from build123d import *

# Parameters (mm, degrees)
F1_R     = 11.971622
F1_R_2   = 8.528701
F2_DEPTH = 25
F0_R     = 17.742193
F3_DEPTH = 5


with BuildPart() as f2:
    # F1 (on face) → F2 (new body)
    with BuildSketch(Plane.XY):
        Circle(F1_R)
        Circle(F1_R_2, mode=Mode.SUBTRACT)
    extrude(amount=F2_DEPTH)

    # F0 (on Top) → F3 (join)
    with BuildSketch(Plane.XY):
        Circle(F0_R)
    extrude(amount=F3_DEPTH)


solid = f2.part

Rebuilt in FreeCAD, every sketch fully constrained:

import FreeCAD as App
import Part
import Sketcher

V = App.Vector

doc = App.newDocument("Part")
body = doc.addObject("PartDesign::Body", "Body")

# Sketch on XY plane
sketch1 = body.newObject("Sketcher::SketchObject", "Sketch")
sketch1.AttachmentSupport = (doc.getObject("XY_Plane"), [""])
sketch1.MapMode = "FlatFace"
sketch1.addGeometry(Part.Circle(V(0, 0, 0), V(0, 0, 1), 12), False)
sketch1.addGeometry(Part.Circle(V(0, 0, 0), V(0, 0, 1), 9), False)
sketch1.addConstraint(Sketcher.Constraint("Coincident", 0, 3, -1, 1))
sketch1.addConstraint(Sketcher.Constraint("Coincident", 1, 3, -1, 1))
sketch1.addConstraint(Sketcher.Constraint("Diameter", 1, 17.057402))
sketch1.addConstraint(Sketcher.Constraint("Diameter", 0, 23.943244))
pad1 = body.newObject("PartDesign::Pad", "Pad")
pad1.Profile = sketch1
pad1.Length = 25

# Sketch on XY plane
sketch2 = body.newObject("Sketcher::SketchObject", "Sketch001")
sketch2.AttachmentSupport = (doc.getObject("XY_Plane"), [""])
sketch2.MapMode = "FlatFace"
sketch2.addGeometry(Part.Circle(V(0, 0, 0), V(0, 0, 1), 18), False)
sketch2.addConstraint(Sketcher.Constraint("Coincident", 0, 3, -1, 1))
sketch2.addConstraint(Sketcher.Constraint("Diameter", 0, 35.484386))
pad2 = body.newObject("PartDesign::Pad", "Pad001")
pad2.Profile = sketch2
pad2.Length = 5

doc.recompute()
